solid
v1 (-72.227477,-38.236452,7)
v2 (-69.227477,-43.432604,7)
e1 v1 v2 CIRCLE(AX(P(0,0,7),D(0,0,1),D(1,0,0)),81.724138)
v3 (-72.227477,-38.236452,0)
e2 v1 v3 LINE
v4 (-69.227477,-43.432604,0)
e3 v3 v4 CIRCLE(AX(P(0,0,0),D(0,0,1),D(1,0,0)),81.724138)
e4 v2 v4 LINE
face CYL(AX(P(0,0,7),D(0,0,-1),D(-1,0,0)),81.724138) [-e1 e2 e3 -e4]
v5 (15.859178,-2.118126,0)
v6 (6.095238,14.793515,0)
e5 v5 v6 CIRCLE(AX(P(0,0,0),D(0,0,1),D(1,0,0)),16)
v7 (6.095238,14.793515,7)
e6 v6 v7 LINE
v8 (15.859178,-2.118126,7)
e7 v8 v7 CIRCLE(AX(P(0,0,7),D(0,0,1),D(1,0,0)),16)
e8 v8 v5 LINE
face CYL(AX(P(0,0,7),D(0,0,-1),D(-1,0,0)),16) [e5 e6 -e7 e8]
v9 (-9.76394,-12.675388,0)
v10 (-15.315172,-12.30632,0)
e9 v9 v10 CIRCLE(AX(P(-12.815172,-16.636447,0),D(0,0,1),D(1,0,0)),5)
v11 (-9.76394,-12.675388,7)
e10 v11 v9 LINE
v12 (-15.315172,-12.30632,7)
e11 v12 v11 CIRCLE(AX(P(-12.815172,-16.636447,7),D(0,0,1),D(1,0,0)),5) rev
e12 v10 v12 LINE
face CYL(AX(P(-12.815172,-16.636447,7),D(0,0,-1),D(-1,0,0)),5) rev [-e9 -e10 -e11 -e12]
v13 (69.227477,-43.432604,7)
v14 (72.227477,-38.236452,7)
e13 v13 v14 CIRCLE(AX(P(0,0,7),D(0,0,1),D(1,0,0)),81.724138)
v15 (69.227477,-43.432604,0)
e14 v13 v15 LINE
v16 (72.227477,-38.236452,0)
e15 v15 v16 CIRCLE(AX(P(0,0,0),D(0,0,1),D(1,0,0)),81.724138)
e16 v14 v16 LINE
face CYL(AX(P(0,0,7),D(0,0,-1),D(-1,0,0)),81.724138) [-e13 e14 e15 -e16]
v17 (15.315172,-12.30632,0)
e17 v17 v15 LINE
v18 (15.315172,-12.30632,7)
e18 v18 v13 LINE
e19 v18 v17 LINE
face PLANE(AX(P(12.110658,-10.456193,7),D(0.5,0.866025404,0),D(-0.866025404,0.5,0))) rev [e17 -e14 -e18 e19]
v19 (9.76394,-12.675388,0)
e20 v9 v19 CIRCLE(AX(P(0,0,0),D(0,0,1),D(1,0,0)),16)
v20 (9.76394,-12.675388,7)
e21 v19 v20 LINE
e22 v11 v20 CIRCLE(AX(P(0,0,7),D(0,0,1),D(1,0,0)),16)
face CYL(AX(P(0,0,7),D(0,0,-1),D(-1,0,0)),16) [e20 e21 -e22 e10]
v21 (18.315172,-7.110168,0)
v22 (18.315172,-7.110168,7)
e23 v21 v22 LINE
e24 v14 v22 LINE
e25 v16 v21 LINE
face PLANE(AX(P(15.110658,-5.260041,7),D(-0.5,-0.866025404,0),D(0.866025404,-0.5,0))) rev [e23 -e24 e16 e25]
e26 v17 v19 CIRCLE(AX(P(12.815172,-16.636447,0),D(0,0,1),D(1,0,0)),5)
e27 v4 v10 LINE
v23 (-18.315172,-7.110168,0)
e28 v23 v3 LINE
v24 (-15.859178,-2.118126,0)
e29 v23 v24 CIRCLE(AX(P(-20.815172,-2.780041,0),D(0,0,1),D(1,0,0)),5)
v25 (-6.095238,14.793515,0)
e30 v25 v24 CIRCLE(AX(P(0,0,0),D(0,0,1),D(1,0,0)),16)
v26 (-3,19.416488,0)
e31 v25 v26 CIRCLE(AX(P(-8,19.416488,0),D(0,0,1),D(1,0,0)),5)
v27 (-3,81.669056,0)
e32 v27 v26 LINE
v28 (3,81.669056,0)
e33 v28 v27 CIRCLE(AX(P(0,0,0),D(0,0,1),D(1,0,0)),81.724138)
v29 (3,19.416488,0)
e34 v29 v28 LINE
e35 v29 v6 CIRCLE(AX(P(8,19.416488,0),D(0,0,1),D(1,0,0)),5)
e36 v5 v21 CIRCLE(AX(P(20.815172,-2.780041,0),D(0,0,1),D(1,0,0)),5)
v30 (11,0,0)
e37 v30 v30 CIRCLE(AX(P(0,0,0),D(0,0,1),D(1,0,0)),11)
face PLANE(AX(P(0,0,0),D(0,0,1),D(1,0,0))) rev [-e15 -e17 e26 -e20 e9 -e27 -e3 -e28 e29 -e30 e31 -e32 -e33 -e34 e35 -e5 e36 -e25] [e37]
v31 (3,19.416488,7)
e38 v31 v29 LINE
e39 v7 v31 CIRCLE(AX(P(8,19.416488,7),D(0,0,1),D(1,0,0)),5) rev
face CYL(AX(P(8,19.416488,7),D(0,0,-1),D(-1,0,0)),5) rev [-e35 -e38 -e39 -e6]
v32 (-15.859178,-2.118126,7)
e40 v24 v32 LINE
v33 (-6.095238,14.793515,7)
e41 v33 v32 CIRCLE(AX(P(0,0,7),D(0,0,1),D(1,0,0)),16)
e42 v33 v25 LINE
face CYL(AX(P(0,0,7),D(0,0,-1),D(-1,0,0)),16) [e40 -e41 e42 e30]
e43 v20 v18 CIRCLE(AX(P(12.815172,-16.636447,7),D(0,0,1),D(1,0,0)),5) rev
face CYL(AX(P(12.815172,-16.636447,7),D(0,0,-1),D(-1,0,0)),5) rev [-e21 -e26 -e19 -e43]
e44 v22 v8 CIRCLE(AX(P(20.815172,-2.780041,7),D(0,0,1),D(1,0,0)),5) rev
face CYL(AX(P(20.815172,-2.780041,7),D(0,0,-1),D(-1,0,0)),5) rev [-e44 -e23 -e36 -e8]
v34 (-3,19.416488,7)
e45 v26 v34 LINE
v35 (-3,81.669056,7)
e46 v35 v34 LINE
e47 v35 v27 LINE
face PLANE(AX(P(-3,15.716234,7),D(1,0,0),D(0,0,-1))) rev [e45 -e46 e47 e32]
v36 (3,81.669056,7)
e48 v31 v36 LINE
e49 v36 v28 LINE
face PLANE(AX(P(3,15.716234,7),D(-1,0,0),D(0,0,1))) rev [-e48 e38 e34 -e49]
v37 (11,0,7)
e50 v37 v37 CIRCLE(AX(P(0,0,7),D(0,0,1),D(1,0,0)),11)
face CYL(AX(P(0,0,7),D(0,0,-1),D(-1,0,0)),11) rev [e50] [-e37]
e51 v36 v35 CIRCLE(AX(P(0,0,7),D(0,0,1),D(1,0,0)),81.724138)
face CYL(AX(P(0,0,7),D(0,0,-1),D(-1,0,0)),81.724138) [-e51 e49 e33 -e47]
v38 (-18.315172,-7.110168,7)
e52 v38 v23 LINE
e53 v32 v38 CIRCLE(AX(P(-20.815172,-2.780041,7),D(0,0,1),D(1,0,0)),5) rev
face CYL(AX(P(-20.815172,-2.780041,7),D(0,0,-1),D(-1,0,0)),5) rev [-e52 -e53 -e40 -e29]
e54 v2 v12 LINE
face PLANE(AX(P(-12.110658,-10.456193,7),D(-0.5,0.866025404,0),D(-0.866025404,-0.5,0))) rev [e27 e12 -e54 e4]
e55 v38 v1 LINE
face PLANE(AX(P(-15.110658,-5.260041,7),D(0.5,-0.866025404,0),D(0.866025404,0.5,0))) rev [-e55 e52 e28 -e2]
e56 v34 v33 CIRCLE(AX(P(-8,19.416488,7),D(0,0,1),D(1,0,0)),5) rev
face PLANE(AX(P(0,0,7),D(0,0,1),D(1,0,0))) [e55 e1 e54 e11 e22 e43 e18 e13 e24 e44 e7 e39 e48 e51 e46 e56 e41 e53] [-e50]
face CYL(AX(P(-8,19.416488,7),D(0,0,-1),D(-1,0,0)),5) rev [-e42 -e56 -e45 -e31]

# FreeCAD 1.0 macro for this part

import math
import FreeCAD as App
import Part
import Sketcher
Q = App.Units.Quantity


def edges_at(feature, points):
    """Names of the edges that pass closest to the given points."""
    edges = feature.Shape.Edges
    near = lambda p: min(range(len(edges)), key=lambda i: edges[i].distToShape(Part.Vertex(*p))[0])
    return sorted({f"Edge{near(p) + 1}" for p in points})

doc = App.newDocument("Part")
body = doc.addObject("PartDesign::Body", "Body")

# Sketch on XY plane
sketch1 = body.newObject("Sketcher::SketchObject", "Sketch")
sketch1.AttachmentSupport = (doc.getObject("XY_Plane"), [""])
sketch1.MapMode = "FlatFace"
sketch1.addGeometry(Part.LineSegment(App.Vector(-3, 82, 0), App.Vector(-3, 16, 0)), False)
sketch1.addGeometry(Part.ArcOfCircle(Part.Circle(App.Vector(0, 0, 0), App.Vector(0, 0, 1), 16), math.radians(101), math.radians(199)), False)
sketch1.addGeometry(Part.LineSegment(App.Vector(-15, -5, 0), App.Vector(-72, -38, 0)), False)
sketch1.addGeometry(Part.ArcOfCircle(Part.Circle(App.Vector(0, 0, 0), App.Vector(0, 0, 1), 82), math.radians(-152.1), math.radians(-147.9)), False)
sketch1.addGeometry(Part.LineSegment(App.Vector(-69, -43, 0), App.Vector(-12, -10, 0)), False)
sketch1.addGeometry(Part.ArcOfCircle(Part.Circle(App.Vector(0, 0, 0), App.Vector(0, 0, 1), 16), math.radians(-139), math.radians(-41)), False)
sketch1.addGeometry(Part.LineSegment(App.Vector(12, -10, 0), App.Vector(69, -43, 0)), False)
sketch1.addGeometry(Part.ArcOfCircle(Part.Circle(App.Vector(0, 0, 0), App.Vector(0, 0, 1), 82), math.radians(-32.1), math.radians(-27.9)), False)
sketch1.addGeometry(Part.LineSegment(App.Vector(72, -38, 0), App.Vector(15, -5, 0)), False)
sketch1.addGeometry(Part.ArcOfCircle(Part.Circle(App.Vector(0, 0, 0), App.Vector(0, 0, 1), 16), math.radians(-19), math.radians(79)), False)
sketch1.addGeometry(Part.LineSegment(App.Vector(3, 16, 0), App.Vector(3, 82, 0)), False)
sketch1.addGeometry(Part.ArcOfCircle(Part.Circle(App.Vector(0, 0, 0), App.Vector(0, 0, 1), 82), math.radians(87.9), math.radians(92.1)), False)
sketch1.addGeometry(Part.Circle(App.Vector(0, 0, 0), App.Vector(0, 0, 1), 11), False)
sketch1.addConstraint(Sketcher.Constraint("Coincident", 0, 2, 1, 1))
sketch1.addConstraint(Sketcher.Constraint("Coincident", 1, 2, 2, 1))
sketch1.addConstraint(Sketcher.Constraint("Coincident", 2, 2, 3, 1))
sketch1.addConstraint(Sketcher.Constraint("Coincident", 3, 2, 4, 1))
sketch1.addConstraint(Sketcher.Constraint("Coincident", 4, 2, 5, 1))
sketch1.addConstraint(Sketcher.Constraint("Coincident", 5, 2, 6, 1))
sketch1.addConstraint(Sketcher.Constraint("Coincident", 6, 2, 7, 1))
sketch1.addConstraint(Sketcher.Constraint("Coincident", 7, 2, 8, 1))
sketch1.addConstraint(Sketcher.Constraint("Coincident", 8, 2, 9, 1))
sketch1.addConstraint(Sketcher.Constraint("Coincident", 9, 2, 10, 1))
sketch1.addConstraint(Sketcher.Constraint("Coincident", 10, 2, 11, 1))
sketch1.addConstraint(Sketcher.Constraint("Coincident", 11, 2, 0, 1))
sketch1.addConstraint(Sketcher.Constraint("Vertical", 0))
sketch1.addConstraint(Sketcher.Constraint("Vertical", 10))
sketch1.addConstraint(Sketcher.Constraint("Coincident", 1, 3, -1, 1))
sketch1.addConstraint(Sketcher.Constraint("Coincident", 3, 3, -1, 1))
sketch1.addConstraint(Sketcher.Constraint("Coincident", 5, 3, -1, 1))
sketch1.addConstraint(Sketcher.Constraint("Coincident", 7, 3, -1, 1))
sketch1.addConstraint(Sketcher.Constraint("Coincident", 9, 3, -1, 1))
sketch1.addConstraint(Sketcher.Constraint("Coincident", 11, 3, -1, 1))
sketch1.addConstraint(Sketcher.Constraint("Coincident", 12, 3, -1, 1))
sketch1.addConstraint(Sketcher.Constraint("Equal", 1, 5))
sketch1.addConstraint(Sketcher.Constraint("Equal", 3, 7))
sketch1.addConstraint(Sketcher.Constraint("Equal", 5, 9))
sketch1.addConstraint(Sketcher.Constraint("Equal", 7, 11))
sketch1.addConstraint(Sketcher.Constraint("Parallel", 2, 4))
sketch1.addConstraint(Sketcher.Constraint("Parallel", 6, 8))
sketch1.addConstraint(Sketcher.Constraint("Horizontal", 4, 2, 5, 2))
sketch1.addConstraint(Sketcher.Constraint("Horizontal", 3, 2, 6, 2))
sketch1.addConstraint(Sketcher.Constraint("Horizontal", 2, 2, 7, 2))
sketch1.addConstraint(Sketcher.Constraint("Horizontal", 0, 2, 9, 2))
sketch1.addConstraint(Sketcher.Constraint("Equal", 2, 4))
sketch1.addConstraint(Sketcher.Constraint("Diameter", 12, Q("22 mm")))
sketch1.addConstraint(Sketcher.Constraint("Radius", 1, Q("16 mm")))
sketch1.addConstraint(Sketcher.Constraint("Angle", 2, Q("-150 deg")))
sketch1.addConstraint(Sketcher.Constraint("DistanceX", 0, 2, -1, 1, Q("3 mm")))
sketch1.addConstraint(Sketcher.Constraint("DistanceX", 2, 2, 3, 2, Q("3 mm")))
sketch1.addConstraint(Sketcher.Constraint("Radius", 3, Q("81.724137 mm")))
pad1 = body.newObject("PartDesign::Pad", "Pad")
pad1.Profile = sketch1
pad1.Length = 7
doc.recompute()

fillet = body.newObject("PartDesign::Fillet", "Fillet")
fillet.Base = (pad1, edges_at(pad1, [
    (-3, 15.716, 3.5),
    (3, 15.716, 3.5),
    (15.111, -5.26, 3.5),
    (12.111, -10.456, 3.5),
    (-12.111, -10.456, 3.5),
    (-15.111, -5.26, 3.5),
]))
fillet.Radius = 5

doc.recompute()
